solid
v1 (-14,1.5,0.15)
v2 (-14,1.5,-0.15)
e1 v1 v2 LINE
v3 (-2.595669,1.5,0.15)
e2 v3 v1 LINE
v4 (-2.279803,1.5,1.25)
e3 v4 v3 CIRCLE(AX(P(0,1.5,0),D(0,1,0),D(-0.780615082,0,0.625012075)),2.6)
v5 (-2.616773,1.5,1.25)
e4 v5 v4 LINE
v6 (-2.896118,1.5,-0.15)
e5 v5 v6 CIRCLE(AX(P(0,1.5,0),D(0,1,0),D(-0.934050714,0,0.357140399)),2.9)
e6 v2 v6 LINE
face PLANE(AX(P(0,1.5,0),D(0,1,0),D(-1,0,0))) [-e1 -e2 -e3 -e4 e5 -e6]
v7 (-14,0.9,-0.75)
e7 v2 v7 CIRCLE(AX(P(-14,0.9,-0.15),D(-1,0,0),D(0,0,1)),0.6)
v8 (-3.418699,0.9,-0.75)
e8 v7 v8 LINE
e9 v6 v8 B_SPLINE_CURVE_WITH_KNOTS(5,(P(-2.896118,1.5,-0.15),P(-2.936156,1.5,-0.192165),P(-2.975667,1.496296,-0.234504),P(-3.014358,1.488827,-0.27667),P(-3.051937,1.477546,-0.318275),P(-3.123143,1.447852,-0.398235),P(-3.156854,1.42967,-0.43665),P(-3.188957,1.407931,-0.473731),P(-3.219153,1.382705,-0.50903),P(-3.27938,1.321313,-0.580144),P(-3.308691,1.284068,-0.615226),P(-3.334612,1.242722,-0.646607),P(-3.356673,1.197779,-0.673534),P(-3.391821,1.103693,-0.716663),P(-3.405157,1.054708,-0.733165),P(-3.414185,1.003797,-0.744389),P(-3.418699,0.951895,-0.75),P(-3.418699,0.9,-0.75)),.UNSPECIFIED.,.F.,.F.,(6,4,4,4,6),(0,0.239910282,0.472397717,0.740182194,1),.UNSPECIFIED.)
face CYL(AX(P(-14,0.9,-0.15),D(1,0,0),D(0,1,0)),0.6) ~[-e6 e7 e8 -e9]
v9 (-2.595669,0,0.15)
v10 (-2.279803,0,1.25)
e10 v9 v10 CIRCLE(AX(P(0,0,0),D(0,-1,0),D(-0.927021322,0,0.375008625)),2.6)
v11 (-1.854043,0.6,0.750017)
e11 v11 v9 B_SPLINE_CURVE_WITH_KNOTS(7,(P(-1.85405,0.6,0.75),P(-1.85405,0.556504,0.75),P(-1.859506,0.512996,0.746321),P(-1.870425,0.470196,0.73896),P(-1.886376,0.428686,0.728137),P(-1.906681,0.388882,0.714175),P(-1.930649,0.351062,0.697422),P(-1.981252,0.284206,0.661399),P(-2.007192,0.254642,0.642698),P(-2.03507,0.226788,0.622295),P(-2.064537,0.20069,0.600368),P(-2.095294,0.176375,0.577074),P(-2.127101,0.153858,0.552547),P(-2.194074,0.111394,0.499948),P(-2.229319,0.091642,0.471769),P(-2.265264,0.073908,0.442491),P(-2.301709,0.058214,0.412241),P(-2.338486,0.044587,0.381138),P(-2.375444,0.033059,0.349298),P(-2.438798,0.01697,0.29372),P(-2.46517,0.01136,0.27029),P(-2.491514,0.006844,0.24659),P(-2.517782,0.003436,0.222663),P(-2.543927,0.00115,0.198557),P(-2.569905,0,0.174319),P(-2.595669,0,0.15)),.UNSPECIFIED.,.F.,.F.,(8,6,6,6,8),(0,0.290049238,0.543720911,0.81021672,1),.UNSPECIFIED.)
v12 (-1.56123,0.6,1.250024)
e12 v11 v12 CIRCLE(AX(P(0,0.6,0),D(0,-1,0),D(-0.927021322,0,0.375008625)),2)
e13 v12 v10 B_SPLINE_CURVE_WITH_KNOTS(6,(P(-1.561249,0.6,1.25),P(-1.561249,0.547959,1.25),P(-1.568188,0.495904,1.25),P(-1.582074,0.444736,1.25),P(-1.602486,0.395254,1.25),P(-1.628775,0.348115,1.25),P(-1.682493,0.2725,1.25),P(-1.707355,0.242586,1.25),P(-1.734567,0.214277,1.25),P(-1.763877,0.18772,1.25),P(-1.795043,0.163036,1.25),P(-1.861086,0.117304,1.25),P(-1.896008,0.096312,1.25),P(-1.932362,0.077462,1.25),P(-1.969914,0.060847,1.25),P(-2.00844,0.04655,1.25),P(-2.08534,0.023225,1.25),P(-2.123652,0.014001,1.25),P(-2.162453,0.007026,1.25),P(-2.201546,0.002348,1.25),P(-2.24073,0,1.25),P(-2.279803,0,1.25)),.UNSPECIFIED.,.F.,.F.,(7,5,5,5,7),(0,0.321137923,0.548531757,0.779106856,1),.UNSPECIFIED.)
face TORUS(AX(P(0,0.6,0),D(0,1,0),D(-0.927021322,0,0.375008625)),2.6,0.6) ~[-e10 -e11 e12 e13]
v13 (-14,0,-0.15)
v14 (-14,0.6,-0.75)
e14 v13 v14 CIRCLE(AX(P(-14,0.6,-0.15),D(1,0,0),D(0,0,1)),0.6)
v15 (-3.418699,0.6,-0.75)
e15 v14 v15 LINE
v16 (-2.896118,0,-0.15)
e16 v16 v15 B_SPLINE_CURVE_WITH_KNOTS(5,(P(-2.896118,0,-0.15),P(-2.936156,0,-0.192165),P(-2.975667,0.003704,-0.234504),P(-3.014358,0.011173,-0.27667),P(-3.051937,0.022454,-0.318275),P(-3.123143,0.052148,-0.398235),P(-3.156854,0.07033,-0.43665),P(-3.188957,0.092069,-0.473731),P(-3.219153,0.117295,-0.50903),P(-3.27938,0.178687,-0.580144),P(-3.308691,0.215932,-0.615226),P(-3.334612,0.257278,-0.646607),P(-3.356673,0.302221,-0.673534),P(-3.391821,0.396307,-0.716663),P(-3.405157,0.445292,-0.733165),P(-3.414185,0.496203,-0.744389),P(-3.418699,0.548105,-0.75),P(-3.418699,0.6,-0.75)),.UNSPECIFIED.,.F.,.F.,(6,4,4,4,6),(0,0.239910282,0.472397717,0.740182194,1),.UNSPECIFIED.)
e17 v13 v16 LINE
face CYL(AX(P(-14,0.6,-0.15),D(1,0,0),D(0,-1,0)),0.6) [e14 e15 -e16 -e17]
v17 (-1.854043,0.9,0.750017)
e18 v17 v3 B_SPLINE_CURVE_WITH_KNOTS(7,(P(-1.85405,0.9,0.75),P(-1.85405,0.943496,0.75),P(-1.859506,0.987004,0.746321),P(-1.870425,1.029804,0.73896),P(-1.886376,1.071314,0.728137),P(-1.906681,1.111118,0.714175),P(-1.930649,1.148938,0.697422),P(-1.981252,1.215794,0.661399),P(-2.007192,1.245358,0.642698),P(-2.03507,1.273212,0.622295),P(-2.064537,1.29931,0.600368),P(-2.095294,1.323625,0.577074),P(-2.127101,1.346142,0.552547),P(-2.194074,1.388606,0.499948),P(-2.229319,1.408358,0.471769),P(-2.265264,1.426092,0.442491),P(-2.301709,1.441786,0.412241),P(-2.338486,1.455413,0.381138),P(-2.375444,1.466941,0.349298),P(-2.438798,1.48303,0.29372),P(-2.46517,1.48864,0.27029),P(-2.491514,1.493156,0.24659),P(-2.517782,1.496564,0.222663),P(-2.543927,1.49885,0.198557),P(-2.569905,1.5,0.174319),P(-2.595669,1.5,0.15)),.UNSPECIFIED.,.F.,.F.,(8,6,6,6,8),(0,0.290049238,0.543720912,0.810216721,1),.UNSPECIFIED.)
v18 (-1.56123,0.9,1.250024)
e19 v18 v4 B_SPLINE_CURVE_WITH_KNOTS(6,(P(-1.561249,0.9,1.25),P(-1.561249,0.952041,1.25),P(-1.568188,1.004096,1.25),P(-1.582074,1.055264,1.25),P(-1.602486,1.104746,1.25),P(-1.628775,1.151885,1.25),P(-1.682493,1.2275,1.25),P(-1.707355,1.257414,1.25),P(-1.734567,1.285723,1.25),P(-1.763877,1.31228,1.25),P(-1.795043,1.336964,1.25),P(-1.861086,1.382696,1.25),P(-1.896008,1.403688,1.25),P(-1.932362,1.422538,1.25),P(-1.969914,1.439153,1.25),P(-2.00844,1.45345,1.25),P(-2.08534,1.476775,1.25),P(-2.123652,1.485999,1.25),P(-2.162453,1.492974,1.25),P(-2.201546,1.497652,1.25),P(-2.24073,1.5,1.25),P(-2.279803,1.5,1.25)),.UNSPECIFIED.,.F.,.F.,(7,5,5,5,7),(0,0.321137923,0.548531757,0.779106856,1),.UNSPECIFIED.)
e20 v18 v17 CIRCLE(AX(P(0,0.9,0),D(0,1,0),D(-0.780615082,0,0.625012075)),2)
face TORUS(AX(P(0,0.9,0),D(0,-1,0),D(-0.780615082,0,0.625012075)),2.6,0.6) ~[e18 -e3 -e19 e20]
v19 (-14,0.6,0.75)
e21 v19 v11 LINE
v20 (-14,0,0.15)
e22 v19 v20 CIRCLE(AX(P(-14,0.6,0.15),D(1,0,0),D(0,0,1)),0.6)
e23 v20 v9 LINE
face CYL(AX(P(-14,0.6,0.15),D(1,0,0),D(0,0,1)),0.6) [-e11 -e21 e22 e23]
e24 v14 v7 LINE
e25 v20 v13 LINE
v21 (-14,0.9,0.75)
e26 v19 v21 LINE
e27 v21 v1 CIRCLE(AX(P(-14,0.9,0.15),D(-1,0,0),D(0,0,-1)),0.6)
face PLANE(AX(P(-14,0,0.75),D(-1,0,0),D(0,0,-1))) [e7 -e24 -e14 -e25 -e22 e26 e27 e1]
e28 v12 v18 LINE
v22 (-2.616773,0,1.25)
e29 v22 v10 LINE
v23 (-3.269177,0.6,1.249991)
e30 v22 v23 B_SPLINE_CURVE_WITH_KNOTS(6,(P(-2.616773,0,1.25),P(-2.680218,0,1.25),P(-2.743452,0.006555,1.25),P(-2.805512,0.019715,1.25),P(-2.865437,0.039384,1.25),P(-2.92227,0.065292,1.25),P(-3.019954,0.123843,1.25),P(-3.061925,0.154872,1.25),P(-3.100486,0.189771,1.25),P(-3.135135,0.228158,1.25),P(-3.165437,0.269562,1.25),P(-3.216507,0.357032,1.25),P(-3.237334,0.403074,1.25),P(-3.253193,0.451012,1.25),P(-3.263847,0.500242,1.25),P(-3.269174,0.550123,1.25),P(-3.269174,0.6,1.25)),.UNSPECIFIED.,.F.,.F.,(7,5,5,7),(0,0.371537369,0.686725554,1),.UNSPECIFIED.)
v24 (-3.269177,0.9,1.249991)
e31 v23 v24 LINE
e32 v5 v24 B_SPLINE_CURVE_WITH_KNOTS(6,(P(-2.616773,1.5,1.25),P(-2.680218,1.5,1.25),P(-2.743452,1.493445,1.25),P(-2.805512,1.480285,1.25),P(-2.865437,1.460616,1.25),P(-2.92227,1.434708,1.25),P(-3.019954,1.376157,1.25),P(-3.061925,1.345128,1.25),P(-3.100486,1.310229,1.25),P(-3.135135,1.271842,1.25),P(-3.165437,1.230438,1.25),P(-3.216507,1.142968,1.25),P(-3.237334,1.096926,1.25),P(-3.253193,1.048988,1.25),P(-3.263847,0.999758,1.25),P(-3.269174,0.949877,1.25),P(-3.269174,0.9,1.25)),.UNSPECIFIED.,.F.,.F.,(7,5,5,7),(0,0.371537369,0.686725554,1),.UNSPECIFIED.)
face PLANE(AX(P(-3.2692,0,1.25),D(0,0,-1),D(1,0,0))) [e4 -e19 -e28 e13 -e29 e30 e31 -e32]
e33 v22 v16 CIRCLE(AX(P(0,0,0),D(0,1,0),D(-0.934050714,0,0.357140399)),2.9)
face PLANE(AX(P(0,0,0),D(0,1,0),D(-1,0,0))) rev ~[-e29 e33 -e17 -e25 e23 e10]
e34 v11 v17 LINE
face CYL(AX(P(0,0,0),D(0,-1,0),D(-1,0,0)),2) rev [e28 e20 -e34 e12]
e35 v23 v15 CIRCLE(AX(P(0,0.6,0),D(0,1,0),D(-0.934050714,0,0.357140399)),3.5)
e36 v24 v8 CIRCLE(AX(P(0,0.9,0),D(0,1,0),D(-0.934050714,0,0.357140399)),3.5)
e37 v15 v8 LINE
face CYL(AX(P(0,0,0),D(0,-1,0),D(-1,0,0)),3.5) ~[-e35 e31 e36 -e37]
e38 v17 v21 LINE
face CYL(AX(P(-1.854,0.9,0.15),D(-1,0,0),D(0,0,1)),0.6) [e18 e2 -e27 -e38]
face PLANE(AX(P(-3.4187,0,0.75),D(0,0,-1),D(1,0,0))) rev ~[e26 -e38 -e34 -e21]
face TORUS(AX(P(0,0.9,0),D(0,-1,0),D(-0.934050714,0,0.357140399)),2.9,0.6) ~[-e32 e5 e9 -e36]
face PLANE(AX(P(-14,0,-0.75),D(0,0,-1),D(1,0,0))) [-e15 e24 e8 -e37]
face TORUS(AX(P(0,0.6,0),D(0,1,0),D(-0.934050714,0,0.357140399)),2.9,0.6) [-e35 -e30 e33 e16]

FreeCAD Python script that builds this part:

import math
import FreeCAD as App
import Part
import Sketcher
from FreeCAD import Vector


def edges_at(feature, points):
    """Names of the edges that pass closest to the given points."""
    edges = feature.Shape.Edges
    near = lambda p: min(range(len(edges)), key=lambda i: edges[i].distToShape(Part.Vertex(*p))[0])
    return sorted({f"Edge{near(p) + 1}" for p in points})

doc = App.newDocument("Part")
body = doc.addObject("PartDesign::Body", "Body")

sketch1 = doc.addObject("Sketcher::SketchObject", "Sketch")
body.addObject(sketch1)
sketch1.AttachmentSupport = (doc.XZ_Plane, [""])
sketch1.MapMode = "FlatFace"
sketch1.addGeometry(Part.ArcOfCircle(Part.Circle(Vector(0, 0, 0), Vector(0, 0, 1), 2), math.radians(158), math.radians(501)), False)
sketch1.addGeometry(Part.LineSegment(Vector(-1.6, 1.2, 0), Vector(-3.3, 1.2, 0)), False)
sketch1.addGeometry(Part.ArcOfCircle(Part.Circle(Vector(0, 0, 0), Vector(0, 0, 1), 3.5), math.radians(-168), math.radians(159)), False)
sketch1.addGeometry(Part.LineSegment(Vector(-3.4, -0.8, 0), Vector(-14, -0.8, 0)), False)
sketch1.addGeometry(Part.LineSegment(Vector(-14, -0.8, 0), Vector(-14, 0.8, 0)), False)
sketch1.addGeometry(Part.LineSegment(Vector(-14, 0.8, 0), Vector(-1.9, 0.8, 0)), False)
sketch1.addConstraint(Sketcher.Constraint("Coincident", 0, 2, 1, 1))
sketch1.addConstraint(Sketcher.Constraint("Coincident", 1, 2, 2, 2))
sketch1.addConstraint(Sketcher.Constraint("Coincident", 2, 1, 3, 1))
sketch1.addConstraint(Sketcher.Constraint("Coincident", 3, 2, 4, 1))
sketch1.addConstraint(Sketcher.Constraint("Coincident", 4, 2, 5, 1))
sketch1.addConstraint(Sketcher.Constraint("Coincident", 5, 2, 0, 1))
sketch1.addConstraint(Sketcher.Constraint("Horizontal", 1))
sketch1.addConstraint(Sketcher.Constraint("Horizontal", 3))
sketch1.addConstraint(Sketcher.Constraint("Vertical", 4))
sketch1.addConstraint(Sketcher.Constraint("Horizontal", 5))
sketch1.addConstraint(Sketcher.Constraint("Coincident", 0, 3, -1, 1))
sketch1.addConstraint(Sketcher.Constraint("Coincident", 2, 3, -1, 1))
sketch1.addConstraint(Sketcher.Constraint("Radius", 0, 2.0))
sketch1.addConstraint(Sketcher.Constraint("DistanceY", 4, 1, 4, 2, 1.5))
sketch1.addConstraint(Sketcher.Constraint("DistanceX", 3, 2, -1, 1, 14.0))
sketch1.addConstraint(Sketcher.Constraint("Radius", 2, 3.5))
sketch1.addConstraint(Sketcher.Constraint("DistanceY", 4, 2, 1, 2, 0.5))
sketch1.addConstraint(Sketcher.Constraint("DistanceY", 2, 1, -1, 1, 0.75))
pad1 = doc.addObject("PartDesign::Pad", "Pad")
body.addObject(pad1)
pad1.Profile = sketch1
pad1.Length = 1.5
pad1.Reversed = True
doc.recompute()

fillet = doc.addObject("PartDesign::Fillet", "Fillet")
body.addObject(fillet)
fillet.Base = (pad1, edges_at(pad1, [
    (1.726, 1.5, -1.011),
    (1.726, 0, -1.011),
    (3.49, 1.5, -0.261),
    (3.49, 0, -0.261),
    (-8.709, 1.5, -0.75),
    (-8.709, 0, -0.75),
    (-8.709, 1.5, 0.75),
    (-8.709, 0, 0.75),
]))
fillet.Radius = 0.6

doc.recompute()
